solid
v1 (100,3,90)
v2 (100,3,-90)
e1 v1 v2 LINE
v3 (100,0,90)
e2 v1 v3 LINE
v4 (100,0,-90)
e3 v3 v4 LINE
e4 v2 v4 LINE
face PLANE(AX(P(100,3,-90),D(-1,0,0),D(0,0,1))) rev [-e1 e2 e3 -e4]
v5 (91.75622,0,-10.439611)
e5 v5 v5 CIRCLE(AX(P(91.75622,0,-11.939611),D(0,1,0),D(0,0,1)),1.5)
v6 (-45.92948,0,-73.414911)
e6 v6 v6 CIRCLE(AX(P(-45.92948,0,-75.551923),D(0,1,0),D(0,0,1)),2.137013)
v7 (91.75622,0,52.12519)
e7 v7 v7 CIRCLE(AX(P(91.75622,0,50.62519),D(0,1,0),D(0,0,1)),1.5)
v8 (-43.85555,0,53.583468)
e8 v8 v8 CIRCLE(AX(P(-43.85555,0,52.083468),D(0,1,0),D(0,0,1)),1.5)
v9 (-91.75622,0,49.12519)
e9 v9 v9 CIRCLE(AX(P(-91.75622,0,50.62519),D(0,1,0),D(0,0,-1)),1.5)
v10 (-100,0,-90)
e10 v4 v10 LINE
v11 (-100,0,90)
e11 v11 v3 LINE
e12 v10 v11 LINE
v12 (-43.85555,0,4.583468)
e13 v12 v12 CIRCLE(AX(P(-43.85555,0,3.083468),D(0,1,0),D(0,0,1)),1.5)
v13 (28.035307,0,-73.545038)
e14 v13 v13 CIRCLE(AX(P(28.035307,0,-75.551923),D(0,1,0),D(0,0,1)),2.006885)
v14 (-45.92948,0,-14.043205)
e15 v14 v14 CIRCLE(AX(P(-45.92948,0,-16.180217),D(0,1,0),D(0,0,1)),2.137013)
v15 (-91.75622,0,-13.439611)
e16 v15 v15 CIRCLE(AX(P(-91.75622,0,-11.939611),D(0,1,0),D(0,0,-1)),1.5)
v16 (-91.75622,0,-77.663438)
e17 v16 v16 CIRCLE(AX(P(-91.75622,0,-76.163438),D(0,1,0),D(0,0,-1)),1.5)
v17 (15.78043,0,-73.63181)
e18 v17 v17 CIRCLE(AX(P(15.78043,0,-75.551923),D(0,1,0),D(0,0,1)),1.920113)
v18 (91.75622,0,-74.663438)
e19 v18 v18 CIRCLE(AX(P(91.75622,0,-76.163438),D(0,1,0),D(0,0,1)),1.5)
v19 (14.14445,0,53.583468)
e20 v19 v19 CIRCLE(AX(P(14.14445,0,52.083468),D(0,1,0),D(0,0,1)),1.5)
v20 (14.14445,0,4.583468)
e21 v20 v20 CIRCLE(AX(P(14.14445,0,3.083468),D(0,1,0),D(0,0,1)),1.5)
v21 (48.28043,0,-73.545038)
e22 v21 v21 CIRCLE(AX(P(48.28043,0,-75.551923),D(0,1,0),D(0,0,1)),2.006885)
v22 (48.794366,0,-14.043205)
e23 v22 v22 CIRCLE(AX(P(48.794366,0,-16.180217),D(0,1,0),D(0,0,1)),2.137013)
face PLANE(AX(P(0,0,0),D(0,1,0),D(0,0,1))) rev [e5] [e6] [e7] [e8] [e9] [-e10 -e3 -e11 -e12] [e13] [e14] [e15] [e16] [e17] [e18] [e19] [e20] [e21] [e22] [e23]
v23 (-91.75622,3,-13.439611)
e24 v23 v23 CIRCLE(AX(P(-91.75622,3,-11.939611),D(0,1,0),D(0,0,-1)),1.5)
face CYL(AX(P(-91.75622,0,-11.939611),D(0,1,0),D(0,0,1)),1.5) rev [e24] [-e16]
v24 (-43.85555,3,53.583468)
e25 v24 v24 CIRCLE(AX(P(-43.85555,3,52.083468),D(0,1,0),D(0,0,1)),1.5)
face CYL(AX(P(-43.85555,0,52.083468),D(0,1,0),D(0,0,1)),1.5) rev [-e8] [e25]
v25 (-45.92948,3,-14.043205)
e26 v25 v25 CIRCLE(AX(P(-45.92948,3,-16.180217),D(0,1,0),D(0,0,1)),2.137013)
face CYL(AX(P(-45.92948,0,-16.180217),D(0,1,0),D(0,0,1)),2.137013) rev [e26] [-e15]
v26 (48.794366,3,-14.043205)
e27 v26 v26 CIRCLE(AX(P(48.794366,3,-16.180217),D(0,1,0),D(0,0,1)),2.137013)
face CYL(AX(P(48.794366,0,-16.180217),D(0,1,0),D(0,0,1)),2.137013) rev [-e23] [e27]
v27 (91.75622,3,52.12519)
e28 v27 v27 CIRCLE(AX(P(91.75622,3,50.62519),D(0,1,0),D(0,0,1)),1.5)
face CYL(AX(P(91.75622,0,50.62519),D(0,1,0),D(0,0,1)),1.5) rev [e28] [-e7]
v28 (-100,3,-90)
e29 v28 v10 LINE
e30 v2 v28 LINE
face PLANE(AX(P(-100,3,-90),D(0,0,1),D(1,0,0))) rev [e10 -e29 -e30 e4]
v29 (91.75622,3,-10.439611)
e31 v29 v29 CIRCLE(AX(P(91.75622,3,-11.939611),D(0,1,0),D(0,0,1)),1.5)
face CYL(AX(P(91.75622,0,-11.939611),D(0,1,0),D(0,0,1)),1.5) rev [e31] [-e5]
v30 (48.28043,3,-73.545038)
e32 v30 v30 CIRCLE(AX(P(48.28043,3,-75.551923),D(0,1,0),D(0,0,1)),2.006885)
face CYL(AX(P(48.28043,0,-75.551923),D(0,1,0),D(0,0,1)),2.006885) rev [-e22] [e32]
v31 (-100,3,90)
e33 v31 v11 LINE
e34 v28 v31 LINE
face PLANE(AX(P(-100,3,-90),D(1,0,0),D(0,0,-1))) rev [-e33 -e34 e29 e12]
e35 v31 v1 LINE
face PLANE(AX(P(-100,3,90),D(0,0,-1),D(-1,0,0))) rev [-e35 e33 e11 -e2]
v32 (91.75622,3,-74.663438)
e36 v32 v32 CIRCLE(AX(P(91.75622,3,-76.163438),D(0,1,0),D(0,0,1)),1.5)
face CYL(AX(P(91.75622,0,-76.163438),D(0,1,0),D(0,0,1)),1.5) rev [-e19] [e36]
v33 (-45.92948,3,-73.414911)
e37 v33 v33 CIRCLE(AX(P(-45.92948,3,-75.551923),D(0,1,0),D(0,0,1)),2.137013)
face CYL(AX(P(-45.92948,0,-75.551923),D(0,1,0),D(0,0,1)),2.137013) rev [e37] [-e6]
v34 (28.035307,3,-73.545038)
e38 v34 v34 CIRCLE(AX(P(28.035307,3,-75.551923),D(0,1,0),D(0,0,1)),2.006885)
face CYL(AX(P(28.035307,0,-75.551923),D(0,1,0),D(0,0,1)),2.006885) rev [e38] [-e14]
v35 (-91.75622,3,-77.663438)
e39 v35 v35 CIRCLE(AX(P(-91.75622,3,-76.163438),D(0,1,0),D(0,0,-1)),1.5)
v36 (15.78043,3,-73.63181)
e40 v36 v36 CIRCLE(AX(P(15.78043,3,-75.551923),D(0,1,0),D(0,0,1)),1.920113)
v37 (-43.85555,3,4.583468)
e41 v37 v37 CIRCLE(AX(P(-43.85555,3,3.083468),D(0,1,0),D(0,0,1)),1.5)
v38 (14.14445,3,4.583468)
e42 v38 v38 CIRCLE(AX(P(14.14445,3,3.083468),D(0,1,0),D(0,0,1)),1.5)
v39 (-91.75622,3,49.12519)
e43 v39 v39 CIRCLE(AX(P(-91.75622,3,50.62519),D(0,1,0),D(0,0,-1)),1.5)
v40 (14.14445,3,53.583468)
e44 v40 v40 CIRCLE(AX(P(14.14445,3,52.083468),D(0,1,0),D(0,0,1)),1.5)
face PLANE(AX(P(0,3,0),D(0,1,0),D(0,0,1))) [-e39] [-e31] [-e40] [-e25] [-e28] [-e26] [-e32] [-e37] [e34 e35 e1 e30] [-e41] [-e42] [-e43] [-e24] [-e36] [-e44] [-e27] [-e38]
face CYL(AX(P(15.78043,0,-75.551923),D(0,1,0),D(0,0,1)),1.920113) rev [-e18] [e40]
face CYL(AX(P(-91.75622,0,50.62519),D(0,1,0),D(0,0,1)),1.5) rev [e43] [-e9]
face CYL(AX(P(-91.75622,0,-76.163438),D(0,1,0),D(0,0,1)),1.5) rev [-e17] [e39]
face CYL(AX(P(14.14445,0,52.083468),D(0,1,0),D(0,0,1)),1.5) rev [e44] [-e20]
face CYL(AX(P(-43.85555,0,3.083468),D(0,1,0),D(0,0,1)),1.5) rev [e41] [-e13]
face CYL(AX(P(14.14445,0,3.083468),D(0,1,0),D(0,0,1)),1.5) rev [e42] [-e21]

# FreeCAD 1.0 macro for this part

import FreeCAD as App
import Part
import Sketcher
from FreeCAD import Vector
Q = App.Units.Quantity

doc = App.newDocument("Part")
params = doc.addObject("Spreadsheet::Sheet", "Params")
for row, (alias, value) in enumerate([
    ("sketch1_width", "200 mm"),
    ("sketch1_height", "180 mm"),
    ("pad1_length", "3 mm"),
    ("sketch2_diameter", "3 mm"),
    ("pocket1_length", "3 mm"),
    ("sketch3_diameter", "3 mm"),
    ("pocket2_length", "3 mm"),
    ("pocket3_length", "3 mm"),
], start=1):
    params.set(f"A{row}", alias)
    params.set(f"B{row}", "=" + value)
    params.setAlias(f"B{row}", alias)

body = doc.addObject("PartDesign::Body", "Body")

# Sketch on XZ plane
sketch1 = body.newObject("Sketcher::SketchObject", "Sketch")
sketch1.AttachmentSupport = (doc.getObject("XZ_Plane"), [""])
sketch1.MapMode = "FlatFace"
sketch1.addGeometry(Part.LineSegment(Vector(-100, -90, 0), Vector(-100, 90, 0)), False)
sketch1.addGeometry(Part.LineSegment(Vector(-100, 90, 0), Vector(100, 90, 0)), False)
sketch1.addGeometry(Part.LineSegment(Vector(100, 90, 0), Vector(100, -90, 0)), False)
sketch1.addGeometry(Part.LineSegment(Vector(100, -90, 0), Vector(-100, -90, 0)), False)
sketch1.addConstraint(Sketcher.Constraint("Coincident", 0, 2, 1, 1))
sketch1.addConstraint(Sketcher.Constraint("Coincident", 1, 2, 2, 1))
sketch1.addConstraint(Sketcher.Constraint("Coincident", 2, 2, 3, 1))
sketch1.addConstraint(Sketcher.Constraint("Coincident", 3, 2, 0, 1))
sketch1.addConstraint(Sketcher.Constraint("Vertical", 0))
sketch1.addConstraint(Sketcher.Constraint("Horizontal", 1))
sketch1.addConstraint(Sketcher.Constraint("Vertical", 2))
sketch1.addConstraint(Sketcher.Constraint("Horizontal", 3))
sketch1.addConstraint(Sketcher.Constraint("Symmetric", 0, 2, 2, 2, -1, 1))
sketch1.addConstraint(Sketcher.Constraint("DistanceX", 1, 1, 1, 2, Q("200 mm")))
sketch1.addConstraint(Sketcher.Constraint("DistanceY", 0, 1, 0, 2, Q("180 mm")))
sketch1.setExpression("Constraints[9]", "Params.sketch1_width")
sketch1.setExpression("Constraints[10]", "Params.sketch1_height")
pad1 = body.newObject("PartDesign::Pad", "Pad")
pad1.Profile = sketch1
pad1.setExpression("Length", "Params.pad1_length")
pad1.Reversed = True

# Sketch on XZ plane
sketch2 = body.newObject("Sketcher::SketchObject", "Sketch001")
sketch2.AttachmentSupport = (doc.getObject("XZ_Plane"), [""])
sketch2.MapMode = "FlatFace"
sketch2.AttachmentOffset = App.Placement(Vector(0, 0, -3), App.Rotation())
sketch2.addGeometry(Part.Circle(Vector(91.8, -76.2, 0), Vector(0, 0, 1), 1.5), False)
sketch2.addGeometry(Part.Circle(Vector(91.8, -11.9, 0), Vector(0, 0, 1), 1.5), False)
sketch2.addGeometry(Part.Circle(Vector(91.8, 50.6, 0), Vector(0, 0, 1), 1.5), False)
sketch2.addGeometry(Part.Circle(Vector(-91.8, -76.2, 0), Vector(0, 0, 1), 1.5), False)
sketch2.addGeometry(Part.Circle(Vector(-91.8, -11.9, 0), Vector(0, 0, 1), 1.5), False)
sketch2.addGeometry(Part.Circle(Vector(-91.8, 50.6, 0), Vector(0, 0, 1), 1.5), False)
sketch2.addConstraint(Sketcher.Constraint("Equal", 0, 1))
sketch2.addConstraint(Sketcher.Constraint("Equal", 1, 2))
sketch2.addConstraint(Sketcher.Constraint("Equal", 2, 3))
sketch2.addConstraint(Sketcher.Constraint("Equal", 3, 4))
sketch2.addConstraint(Sketcher.Constraint("Equal", 4, 5))
sketch2.addConstraint(Sketcher.Constraint("Symmetric", 0, 3, 3, 3, -2))
sketch2.addConstraint(Sketcher.Constraint("Symmetric", 1, 3, 4, 3, -2))
sketch2.addConstraint(Sketcher.Constraint("Symmetric", 2, 3, 5, 3, -2))
sketch2.addConstraint(Sketcher.Constraint("Vertical", 0, 3, 1, 3))
sketch2.addConstraint(Sketcher.Constraint("Vertical", 1, 3, 2, 3))
sketch2.addConstraint(Sketcher.Constraint("Diameter", 0, Q("3 mm")))
sketch2.addConstraint(Sketcher.Constraint("DistanceY", 1, 3, 2, 3, Q("62.564801 mm")))
sketch2.addConstraint(Sketcher.Constraint("DistanceX", -1, 1, 0, 3, Q("91.75622 mm")))
sketch2.addConstraint(Sketcher.Constraint("DistanceY", 0, 3, -1, 1, Q("76.163438 mm")))
sketch2.addConstraint(Sketcher.Constraint("DistanceY", 1, 3, -1, 1, Q("11.939611 mm")))
sketch2.setExpression("Constraints[10]", "Params.sketch2_diameter")
pocket1 = body.newObject("PartDesign::Pocket", "Pocket")
pocket1.Profile = sketch2
pocket1.setExpression("Length", "Params.pocket1_length")
pocket1.Reversed = True

# Sketch on XZ plane
sketch3 = body.newObject("Sketcher::SketchObject", "Sketch002")
sketch3.AttachmentSupport = (doc.getObject("XZ_Plane"), [""])
sketch3.MapMode = "FlatFace"
sketch3.AttachmentOffset = App.Placement(Vector(0, 0, -3), App.Rotation())
sketch3.addGeometry(Part.Circle(Vector(14.1, 3.1, 0), Vector(0, 0, 1), 1.5), False)
sketch3.addGeometry(Part.Circle(Vector(14.1, 52.1, 0), Vector(0, 0, 1), 1.5), False)
sketch3.addGeometry(Part.Circle(Vector(-43.9, 52.1, 0), Vector(0, 0, 1), 1.5), False)
sketch3.addGeometry(Part.Circle(Vector(-43.9, 3.1, 0), Vector(0, 0, 1), 1.5), False)
sketch3.addConstraint(Sketcher.Constraint("Equal", 0, 1))
sketch3.addConstraint(Sketcher.Constraint("Equal", 1, 2))
sketch3.addConstraint(Sketcher.Constraint("Equal", 2, 3))
sketch3.addConstraint(Sketcher.Constraint("Horizontal", 1, 3, 2, 3))
sketch3.addConstraint(Sketcher.Constraint("Horizontal", 0, 3, 3, 3))
sketch3.addConstraint(Sketcher.Constraint("Vertical", 0, 3, 1, 3))
sketch3.addConstraint(Sketcher.Constraint("Vertical", 2, 3, 3, 3))
sketch3.addConstraint(Sketcher.Constraint("Diameter", 0, Q("3 mm")))
sketch3.addConstraint(Sketcher.Constraint("DistanceY", 0, 3, 1, 3, Q("49 mm")))
sketch3.addConstraint(Sketcher.Constraint("DistanceX", 2, 3, 1, 3, Q("58 mm")))
sketch3.addConstraint(Sketcher.Constraint("DistanceX", -1, 1, 0, 3, Q("14.14445 mm")))
sketch3.addConstraint(Sketcher.Constraint("DistanceY", -1, 1, 0, 3, Q("3.083468 mm")))
sketch3.setExpression("Constraints[7]", "Params.sketch3_diameter")
pocket2 = body.newObject("PartDesign::Pocket", "Pocket001")
pocket2.Profile = sketch3
pocket2.setExpression("Length", "Params.pocket2_length")
pocket2.Reversed = True

# Sketch on XZ plane
sketch4 = body.newObject("Sketcher::SketchObject", "Sketch003")
sketch4.AttachmentSupport = (doc.getObject("XZ_Plane"), [""])
sketch4.MapMode = "FlatFace"
sketch4.AttachmentOffset = App.Placement(Vector(0, 0, -3), App.Rotation())
sketch4.addGeometry(Part.Circle(Vector(48.8, -16.2, 0), Vector(0, 0, 1), 2.1), False)
sketch4.addGeometry(Part.Circle(Vector(48.3, -75.6, 0), Vector(0, 0, 1), 2), False)
sketch4.addGeometry(Part.Circle(Vector(28, -75.6, 0), Vector(0, 0, 1), 2), False)
sketch4.addGeometry(Part.Circle(Vector(15.8, -75.6, 0), Vector(0, 0, 1), 1.9), False)
sketch4.addGeometry(Part.Circle(Vector(-45.9, -75.6, 0), Vector(0, 0, 1), 2.1), False)
sketch4.addGeometry(Part.Circle(Vector(-45.9, -16.2, 0), Vector(0, 0, 1), 2.1), False)
sketch4.addConstraint(Sketcher.Constraint("Equal", 1, 2))
sketch4.addConstraint(Sketcher.Constraint("Equal", 0, 4))
sketch4.addConstraint(Sketcher.Constraint("Equal", 4, 5))
sketch4.addConstraint(Sketcher.Constraint("Horizontal", 1, 3, 2, 3))
sketch4.addConstraint(Sketcher.Constraint("Horizontal", 2, 3, 3, 3))
sketch4.addConstraint(Sketcher.Constraint("Horizontal", 3, 3, 4, 3))
sketch4.addConstraint(Sketcher.Constraint("Horizontal", 0, 3, 5, 3))
sketch4.addConstraint(Sketcher.Constraint("Vertical", 4, 3, 5, 3))
sketch4.addConstraint(Sketcher.Constraint("DistanceX", 3, 3, 1, 3, Q("32.5 mm")))
sketch4.addConstraint(Sketcher.Constraint("Diameter", 1, Q("4.01377 mm")))
sketch4.addConstraint(Sketcher.Constraint("Diameter", 0, Q("4.274025 mm")))
sketch4.addConstraint(Sketcher.Constraint("Diameter", 3, Q("3.840227 mm")))
sketch4.addConstraint(Sketcher.Constraint("DistanceX", -1, 1, 1, 3, Q("48.28043 mm")))
sketch4.addConstraint(Sketcher.Constraint("DistanceX", 4, 3, -1, 1, Q("45.92948 mm")))
sketch4.addConstraint(Sketcher.Constraint("DistanceX", 2, 3, 0, 3, Q("20.759059 mm")))
sketch4.addConstraint(Sketcher.Constraint("DistanceX", -1, 1, 0, 3, Q("48.794366 mm")))
sketch4.addConstraint(Sketcher.Constraint("DistanceY", 0, 3, -1, 1, Q("16.180217 mm")))
sketch4.addConstraint(Sketcher.Constraint("DistanceY", 1, 3, -1, 1, Q("75.551923 mm")))
pocket3 = body.newObject("PartDesign::Pocket", "Pocket002")
pocket3.Profile = sketch4
pocket3.setExpression("Length", "Params.pocket3_length")
pocket3.Reversed = True

doc.recompute()
